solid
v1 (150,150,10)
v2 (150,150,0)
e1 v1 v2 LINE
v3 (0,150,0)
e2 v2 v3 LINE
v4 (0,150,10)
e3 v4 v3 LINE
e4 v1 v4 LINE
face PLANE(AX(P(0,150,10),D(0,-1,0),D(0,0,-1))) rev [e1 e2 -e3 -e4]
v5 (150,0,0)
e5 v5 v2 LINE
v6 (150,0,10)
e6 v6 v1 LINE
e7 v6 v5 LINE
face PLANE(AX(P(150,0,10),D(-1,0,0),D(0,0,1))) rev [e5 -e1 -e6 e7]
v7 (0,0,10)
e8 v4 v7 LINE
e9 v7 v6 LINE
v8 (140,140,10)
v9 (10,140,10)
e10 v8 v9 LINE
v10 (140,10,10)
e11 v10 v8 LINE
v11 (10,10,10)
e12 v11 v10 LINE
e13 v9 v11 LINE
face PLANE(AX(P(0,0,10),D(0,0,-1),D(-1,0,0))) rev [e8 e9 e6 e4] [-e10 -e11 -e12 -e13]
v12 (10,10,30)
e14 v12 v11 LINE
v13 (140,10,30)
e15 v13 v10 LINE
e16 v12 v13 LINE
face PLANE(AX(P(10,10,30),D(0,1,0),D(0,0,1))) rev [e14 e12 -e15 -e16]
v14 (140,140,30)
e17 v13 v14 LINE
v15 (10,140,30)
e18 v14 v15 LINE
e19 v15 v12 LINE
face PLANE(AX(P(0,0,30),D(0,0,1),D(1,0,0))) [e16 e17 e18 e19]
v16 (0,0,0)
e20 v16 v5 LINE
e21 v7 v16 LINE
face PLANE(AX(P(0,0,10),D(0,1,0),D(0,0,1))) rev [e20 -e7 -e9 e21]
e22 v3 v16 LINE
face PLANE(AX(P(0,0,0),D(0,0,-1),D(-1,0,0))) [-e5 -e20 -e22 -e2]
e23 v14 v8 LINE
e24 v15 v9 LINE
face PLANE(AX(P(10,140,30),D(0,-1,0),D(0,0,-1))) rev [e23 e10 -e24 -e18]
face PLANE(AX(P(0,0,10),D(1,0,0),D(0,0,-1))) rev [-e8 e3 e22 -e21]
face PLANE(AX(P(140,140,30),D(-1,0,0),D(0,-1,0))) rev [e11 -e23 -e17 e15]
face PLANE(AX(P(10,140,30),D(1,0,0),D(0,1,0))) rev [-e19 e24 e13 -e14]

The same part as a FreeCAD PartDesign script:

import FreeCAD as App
import Part
import Sketcher
Q = App.Units.Quantity


def add_polygon(sketch, points):
    """Adds a closed chain of lines whose ends are joined by coincident constraints."""
    first, n = sketch.GeometryCount, len(points)
    for a, b in zip(points, points[1:] + points[:1]):
        sketch.addGeometry(Part.LineSegment(App.Vector(*a, 0), App.Vector(*b, 0)), False)
    for i in range(n):
        sketch.addConstraint(Sketcher.Constraint("Coincident", first + i, 2, first + (i + 1) % n, 1))

doc = App.newDocument("Part")
params = doc.addObject("Spreadsheet::Sheet", "Params")
for row, (alias, value) in enumerate([
    ("sketch1_width", "150 mm"),
    ("pad1_length", "10 mm"),
    ("sketch2_width", "130 mm"),
    ("pad2_length", "20 mm"),
], start=1):
    params.set(f"A{row}", alias)
    params.set(f"B{row}", "=" + value)
    params.setAlias(f"B{row}", alias)

body = doc.addObject("PartDesign::Body", "Body")

# Sketch on XY plane
sketch1 = doc.addObject("Sketcher::SketchObject", "Sketch")
body.addObject(sketch1)
sketch1.AttachmentSupport = (doc.XY_Plane, [""])
sketch1.MapMode = "FlatFace"
add_polygon(sketch1, [(0, 150), (0, 0), (150, 0), (150, 150)])  # lines 0-3
sketch1.addConstraint([
    Sketcher.Constraint("Vertical", 0),
    Sketcher.Constraint("Horizontal", 1),
    Sketcher.Constraint("Vertical", 2),
    Sketcher.Constraint("Horizontal", 3),
    Sketcher.Constraint("Coincident", 0, 2, -1, 1),
    Sketcher.Constraint("Equal", 3, 0),
    Sketcher.Constraint("DistanceX", 1, 1, 1, 2, Q("150 mm")),
])
sketch1.setExpression("Constraints[10]", "Params.sketch1_width")
pad1 = doc.addObject("PartDesign::Pad", "Pad")
body.addObject(pad1)
pad1.Profile = sketch1
pad1.setExpression("Length", "Params.pad1_length")

# Sketch on XY plane
sketch2 = doc.addObject("Sketcher::SketchObject", "Sketch001")
body.addObject(sketch2)
sketch2.AttachmentSupport = (doc.XY_Plane, [""])
sketch2.MapMode = "FlatFace"
sketch2.AttachmentOffset = App.Placement(App.Vector(0, 0, 10), App.Rotation())
add_polygon(sketch2, [(10, 140), (10, 10), (140, 10), (140, 140)])  # lines 0-3
sketch2.addConstraint([
    Sketcher.Constraint("Vertical", 0),
    Sketcher.Constraint("Horizontal", 1),
    Sketcher.Constraint("Vertical", 2),
    Sketcher.Constraint("Horizontal", 3),
    Sketcher.Constraint("Equal", 3, 0),
    Sketcher.Constraint("DistanceX", 1, 1, 1, 2, Q("130 mm")),
    Sketcher.Constraint("DistanceX", -1, 1, 0, 2, Q("10 mm")),
    Sketcher.Constraint("DistanceY", -1, 1, 0, 2, Q("10 mm")),
])
sketch2.setExpression("Constraints[9]", "Params.sketch2_width")
pad2 = doc.addObject("PartDesign::Pad", "Pad001")
body.addObject(pad2)
pad2.Profile = sketch2
pad2.setExpression("Length", "Params.pad2_length")

doc.recompute()
